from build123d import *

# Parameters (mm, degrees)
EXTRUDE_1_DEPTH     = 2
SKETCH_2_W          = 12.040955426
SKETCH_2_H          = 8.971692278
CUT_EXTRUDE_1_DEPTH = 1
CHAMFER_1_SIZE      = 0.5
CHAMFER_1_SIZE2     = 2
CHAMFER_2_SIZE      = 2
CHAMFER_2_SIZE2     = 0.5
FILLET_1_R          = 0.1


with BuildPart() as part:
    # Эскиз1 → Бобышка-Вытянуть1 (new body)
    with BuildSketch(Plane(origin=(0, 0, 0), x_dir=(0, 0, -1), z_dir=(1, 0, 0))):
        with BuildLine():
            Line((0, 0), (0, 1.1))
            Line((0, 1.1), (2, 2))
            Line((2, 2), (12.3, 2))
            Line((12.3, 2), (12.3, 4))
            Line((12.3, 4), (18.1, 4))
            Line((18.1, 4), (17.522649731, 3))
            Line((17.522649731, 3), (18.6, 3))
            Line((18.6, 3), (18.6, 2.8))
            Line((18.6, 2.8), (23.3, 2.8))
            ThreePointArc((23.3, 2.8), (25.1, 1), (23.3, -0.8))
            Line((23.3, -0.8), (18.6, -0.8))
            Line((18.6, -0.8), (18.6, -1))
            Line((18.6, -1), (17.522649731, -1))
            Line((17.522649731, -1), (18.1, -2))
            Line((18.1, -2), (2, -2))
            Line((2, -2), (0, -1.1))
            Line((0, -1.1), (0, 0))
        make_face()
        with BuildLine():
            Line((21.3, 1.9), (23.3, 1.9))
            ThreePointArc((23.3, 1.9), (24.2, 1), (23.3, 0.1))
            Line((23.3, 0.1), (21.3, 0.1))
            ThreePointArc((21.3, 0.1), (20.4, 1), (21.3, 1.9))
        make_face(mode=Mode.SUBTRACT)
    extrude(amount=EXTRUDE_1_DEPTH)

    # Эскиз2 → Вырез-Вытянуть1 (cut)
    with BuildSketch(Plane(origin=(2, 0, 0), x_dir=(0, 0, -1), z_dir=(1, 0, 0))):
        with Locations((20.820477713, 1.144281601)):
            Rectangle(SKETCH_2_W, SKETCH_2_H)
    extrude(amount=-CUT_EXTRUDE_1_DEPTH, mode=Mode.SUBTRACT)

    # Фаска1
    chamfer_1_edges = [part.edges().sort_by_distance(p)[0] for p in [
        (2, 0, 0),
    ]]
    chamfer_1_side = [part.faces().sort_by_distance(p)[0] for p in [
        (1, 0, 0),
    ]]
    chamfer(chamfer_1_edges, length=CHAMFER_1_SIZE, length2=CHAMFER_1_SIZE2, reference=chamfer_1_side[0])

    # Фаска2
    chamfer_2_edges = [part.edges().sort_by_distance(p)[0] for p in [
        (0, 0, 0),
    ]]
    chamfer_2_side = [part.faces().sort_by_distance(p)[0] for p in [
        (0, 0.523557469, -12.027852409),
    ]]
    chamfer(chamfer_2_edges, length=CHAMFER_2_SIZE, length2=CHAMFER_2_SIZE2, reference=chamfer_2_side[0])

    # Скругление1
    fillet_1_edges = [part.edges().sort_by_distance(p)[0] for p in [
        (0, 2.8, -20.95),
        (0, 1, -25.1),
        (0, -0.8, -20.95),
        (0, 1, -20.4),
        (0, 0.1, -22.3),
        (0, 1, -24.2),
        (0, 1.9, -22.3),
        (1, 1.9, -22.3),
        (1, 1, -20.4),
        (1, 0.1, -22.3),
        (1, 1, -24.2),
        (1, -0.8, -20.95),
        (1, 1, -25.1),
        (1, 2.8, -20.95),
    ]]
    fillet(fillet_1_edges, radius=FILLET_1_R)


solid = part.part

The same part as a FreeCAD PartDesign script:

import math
import FreeCAD as App
import Part
import Sketcher
from FreeCAD import Vector
Q = App.Units.Quantity


def edges_at(feature, points):
    """Names of the edges that pass closest to the given points."""
    edges = feature.Shape.Edges
    near = lambda p: min(range(len(edges)), key=lambda i: edges[i].distToShape(Part.Vertex(*p))[0])
    return sorted({f"Edge{near(p) + 1}" for p in points})

doc = App.newDocument("Part")
body = doc.addObject("PartDesign::Body", "Body")

# Sketch on YZ plane
sketch1 = doc.addObject("Sketcher::SketchObject", "Sketch")
body.addObject(sketch1)
sketch1.AttachmentSupport = (doc.YZ_Plane, [""])
sketch1.MapMode = "FlatFace"
sketch1.addGeometry([
    Part.LineSegment(Vector(2, -2, 0), Vector(1.1, 0, 0)),  # 0
    Part.LineSegment(Vector(1.1, 0, 0), Vector(-1.1, 0, 0)),  # 1
    Part.LineSegment(Vector(-1.1, 0, 0), Vector(-2, -2, 0)),  # 2
    Part.LineSegment(Vector(-2, -2, 0), Vector(-2, -18.1, 0)),  # 3
    Part.LineSegment(Vector(-2, -18.1, 0), Vector(-1, -17.52, 0)),  # 4
    Part.LineSegment(Vector(-1, -17.52, 0), Vector(-1, -18.6, 0)),  # 5
    Part.LineSegment(Vector(-1, -18.6, 0), Vector(-0.8, -18.6, 0)),  # 6
    Part.LineSegment(Vector(-0.8, -18.6, 0), Vector(-0.8, -23.3, 0)),  # 7
    Part.ArcOfCircle(Part.Circle(Vector(1, -23.3, 0), Vector(0, 0, 1), 1.8), math.radians(180), math.radians(360)),  # 8
    Part.LineSegment(Vector(2.8, -23.3, 0), Vector(2.8, -18.6, 0)),  # 9
    Part.LineSegment(Vector(2.8, -18.6, 0), Vector(3, -18.6, 0)),  # 10
    Part.LineSegment(Vector(3, -18.6, 0), Vector(3, -17.52, 0)),  # 11
    Part.LineSegment(Vector(3, -17.52, 0), Vector(4, -18.1, 0)),  # 12
    Part.LineSegment(Vector(4, -18.1, 0), Vector(4, -12.3, 0)),  # 13
    Part.LineSegment(Vector(4, -12.3, 0), Vector(2, -12.3, 0)),  # 14
    Part.LineSegment(Vector(2, -12.3, 0), Vector(2, -2, 0)),  # 15
    Part.LineSegment(Vector(1.9, -21.3, 0), Vector(1.9, -23.3, 0)),  # 16
    Part.ArcOfCircle(Part.Circle(Vector(1, -23.3, 0), Vector(0, 0, 1), 0.9), math.radians(180), math.radians(360)),  # 17
    Part.LineSegment(Vector(0.1, -23.3, 0), Vector(0.1, -21.3, 0)),  # 18
    Part.ArcOfCircle(Part.Circle(Vector(1, -21.3, 0), Vector(0, 0, 1), 0.9), math.radians(0), math.radians(180)),  # 19
], False)
sketch1.addConstraint([
    Sketcher.Constraint("Coincident", 0, 2, 1, 1),
    Sketcher.Constraint("Coincident", 1, 2, 2, 1),
    Sketcher.Constraint("Coincident", 2, 2, 3, 1),
    Sketcher.Constraint("Coincident", 3, 2, 4, 1),
    Sketcher.Constraint("Coincident", 4, 2, 5, 1),
    Sketcher.Constraint("Coincident", 5, 2, 6, 1),
    Sketcher.Constraint("Coincident", 6, 2, 7, 1),
    Sketcher.Constraint("Tangent", 7, 2, 8, 1),
    Sketcher.Constraint("Tangent", 8, 2, 9, 1),
    Sketcher.Constraint("Coincident", 9, 2, 10, 1),
    Sketcher.Constraint("Coincident", 10, 2, 11, 1),
    Sketcher.Constraint("Coincident", 11, 2, 12, 1),
    Sketcher.Constraint("Coincident", 12, 2, 13, 1),
    Sketcher.Constraint("Coincident", 13, 2, 14, 1),
    Sketcher.Constraint("Coincident", 14, 2, 15, 1),
    Sketcher.Constraint("Coincident", 15, 2, 0, 1),
    Sketcher.Constraint("Tangent", 16, 2, 17, 2),
    Sketcher.Constraint("Tangent", 17, 1, 18, 1),
    Sketcher.Constraint("Tangent", 18, 2, 19, 2),
    Sketcher.Constraint("Tangent", 19, 1, 16, 1),
    Sketcher.Constraint("Horizontal", 1),
    Sketcher.Constraint("Vertical", 3),
    Sketcher.Constraint("Vertical", 5),
    Sketcher.Constraint("Horizontal", 6),
    Sketcher.Constraint("Vertical", 7),
    Sketcher.Constraint("Vertical", 9),
    Sketcher.Constraint("Horizontal", 10),
    Sketcher.Constraint("Vertical", 11),
    Sketcher.Constraint("Vertical", 13),
    Sketcher.Constraint("Horizontal", 14),
    Sketcher.Constraint("Vertical", 15),
    Sketcher.Constraint("Vertical", 16),
    Sketcher.Constraint("Vertical", 18),
    Sketcher.Constraint("Coincident", 17, 3, 8, 3),
    Sketcher.Constraint("Symmetric", 0, 2, 1, 2, -1, 1),
    Sketcher.Constraint("Symmetric", 2, 2, 15, 2, -2),
    Sketcher.Constraint("Horizontal", 6, 2, 9, 2),
    Sketcher.Constraint("Horizontal", 4, 2, 11, 2),
    Sketcher.Constraint("Horizontal", 3, 2, 12, 2),
    Sketcher.Constraint("Equal", 6, 10),
    Sketcher.Constraint("Equal", 14, 16),
    Sketcher.Constraint("Equal", 4, 12),
    Sketcher.Constraint("Radius", 8, 1.8),
    Sketcher.Constraint("Radius", 17, 0.9),
    Sketcher.Constraint("DistanceX", 14, 2, 14, 1, 2.0),
    Sketcher.Constraint("Angle", 4, Q("30 deg")),
    Sketcher.Constraint("DistanceX", 1, 2, 1, 1, 2.2),
    Sketcher.Constraint("DistanceX", 6, 1, 6, 2, 0.2),
    Sketcher.Constraint("DistanceY", 3, 2, 3, 1, 16.1),
    Sketcher.Constraint("DistanceY", 7, 2, 7, 1, 4.7),
    Sketcher.Constraint("DistanceY", 13, 1, 13, 2, 5.8),
    Sketcher.Constraint("DistanceX", 2, 2, -1, 1, 2.0),
    Sketcher.Constraint("DistanceY", 2, 2, -1, 1, 2.0),
    Sketcher.Constraint("DistanceY", 8, 3, -1, 1, 23.3),
])
pad1 = doc.addObject("PartDesign::Pad", "Pad")
body.addObject(pad1)
pad1.Profile = sketch1
pad1.Length = 2

# Sketch on YZ plane
sketch2 = doc.addObject("Sketcher::SketchObject", "Sketch001")
body.addObject(sketch2)
sketch2.AttachmentSupport = (doc.YZ_Plane, [""])
sketch2.MapMode = "FlatFace"
sketch2.AttachmentOffset = App.Placement(Vector(0, 0, 2), App.Rotation())
sketch2.addGeometry([
    Part.LineSegment(Vector(6, -15, 0), Vector(-3, -15, 0)),
    Part.LineSegment(Vector(-3, -15, 0), Vector(-3, -27, 0)),
    Part.LineSegment(Vector(-3, -27, 0), Vector(6, -27, 0)),
    Part.LineSegment(Vector(6, -27, 0), Vector(6, -15, 0)),
], False)
sketch2.addConstraint([
    Sketcher.Constraint("Coincident", 0, 2, 1, 1),
    Sketcher.Constraint("Coincident", 1, 2, 2, 1),
    Sketcher.Constraint("Coincident", 2, 2, 3, 1),
    Sketcher.Constraint("Coincident", 3, 2, 0, 1),
    Sketcher.Constraint("Horizontal", 0),
    Sketcher.Constraint("Vertical", 1),
    Sketcher.Constraint("Horizontal", 2),
    Sketcher.Constraint("Vertical", 3),
    Sketcher.Constraint("DistanceY", 0, 2, -1, 1, 14.8),
    Sketcher.Constraint("DistanceX", 0, 2, 0, 1, 8.971692),
    Sketcher.Constraint("DistanceY", 1, 2, 1, 1, 12.040955),
    Sketcher.Constraint("DistanceX", 0, 2, -1, 1, 3.341565),
])
pocket1 = doc.addObject("PartDesign::Pocket", "Pocket")
body.addObject(pocket1)
pocket1.Profile = sketch2
pocket1.Length = 1
doc.recompute()

chamfer = doc.addObject("PartDesign::Chamfer", "Chamfer")
body.addObject(chamfer)
chamfer.Base = (pocket1, edges_at(pocket1, [(2, 0, 0)]))
chamfer.ChamferType = "Two distances"
chamfer.Size = 0.5
chamfer.Size2 = 2
doc.recompute()

chamfer2 = doc.addObject("PartDesign::Chamfer", "Chamfer001")
body.addObject(chamfer2)
chamfer2.Base = (chamfer, edges_at(chamfer, [(0, 0, 0)]))
chamfer2.ChamferType = "Two distances"
chamfer2.Size = 2
chamfer2.Size2 = 0.5
chamfer2.FlipDirection = True
doc.recompute()

fillet = doc.addObject("PartDesign::Fillet", "Fillet")
body.addObject(fillet)
fillet.Base = (chamfer2, edges_at(chamfer2, [
    (0, 2.8, -20.95),
    (0, 1, -25.1),
    (0, -0.8, -20.95),
    (0, 1, -20.4),
    (0, 0.1, -22.3),
    (0, 1, -24.2),
    (0, 1.9, -22.3),
    (1, 1.9, -22.3),
    (1, 1, -20.4),
    (1, 0.1, -22.3),
    (1, 1, -24.2),
    (1, -0.8, -20.95),
    (1, 1, -25.1),
    (1, 2.8, -20.95),
]))
fillet.Radius = 0.1

doc.recompute()
